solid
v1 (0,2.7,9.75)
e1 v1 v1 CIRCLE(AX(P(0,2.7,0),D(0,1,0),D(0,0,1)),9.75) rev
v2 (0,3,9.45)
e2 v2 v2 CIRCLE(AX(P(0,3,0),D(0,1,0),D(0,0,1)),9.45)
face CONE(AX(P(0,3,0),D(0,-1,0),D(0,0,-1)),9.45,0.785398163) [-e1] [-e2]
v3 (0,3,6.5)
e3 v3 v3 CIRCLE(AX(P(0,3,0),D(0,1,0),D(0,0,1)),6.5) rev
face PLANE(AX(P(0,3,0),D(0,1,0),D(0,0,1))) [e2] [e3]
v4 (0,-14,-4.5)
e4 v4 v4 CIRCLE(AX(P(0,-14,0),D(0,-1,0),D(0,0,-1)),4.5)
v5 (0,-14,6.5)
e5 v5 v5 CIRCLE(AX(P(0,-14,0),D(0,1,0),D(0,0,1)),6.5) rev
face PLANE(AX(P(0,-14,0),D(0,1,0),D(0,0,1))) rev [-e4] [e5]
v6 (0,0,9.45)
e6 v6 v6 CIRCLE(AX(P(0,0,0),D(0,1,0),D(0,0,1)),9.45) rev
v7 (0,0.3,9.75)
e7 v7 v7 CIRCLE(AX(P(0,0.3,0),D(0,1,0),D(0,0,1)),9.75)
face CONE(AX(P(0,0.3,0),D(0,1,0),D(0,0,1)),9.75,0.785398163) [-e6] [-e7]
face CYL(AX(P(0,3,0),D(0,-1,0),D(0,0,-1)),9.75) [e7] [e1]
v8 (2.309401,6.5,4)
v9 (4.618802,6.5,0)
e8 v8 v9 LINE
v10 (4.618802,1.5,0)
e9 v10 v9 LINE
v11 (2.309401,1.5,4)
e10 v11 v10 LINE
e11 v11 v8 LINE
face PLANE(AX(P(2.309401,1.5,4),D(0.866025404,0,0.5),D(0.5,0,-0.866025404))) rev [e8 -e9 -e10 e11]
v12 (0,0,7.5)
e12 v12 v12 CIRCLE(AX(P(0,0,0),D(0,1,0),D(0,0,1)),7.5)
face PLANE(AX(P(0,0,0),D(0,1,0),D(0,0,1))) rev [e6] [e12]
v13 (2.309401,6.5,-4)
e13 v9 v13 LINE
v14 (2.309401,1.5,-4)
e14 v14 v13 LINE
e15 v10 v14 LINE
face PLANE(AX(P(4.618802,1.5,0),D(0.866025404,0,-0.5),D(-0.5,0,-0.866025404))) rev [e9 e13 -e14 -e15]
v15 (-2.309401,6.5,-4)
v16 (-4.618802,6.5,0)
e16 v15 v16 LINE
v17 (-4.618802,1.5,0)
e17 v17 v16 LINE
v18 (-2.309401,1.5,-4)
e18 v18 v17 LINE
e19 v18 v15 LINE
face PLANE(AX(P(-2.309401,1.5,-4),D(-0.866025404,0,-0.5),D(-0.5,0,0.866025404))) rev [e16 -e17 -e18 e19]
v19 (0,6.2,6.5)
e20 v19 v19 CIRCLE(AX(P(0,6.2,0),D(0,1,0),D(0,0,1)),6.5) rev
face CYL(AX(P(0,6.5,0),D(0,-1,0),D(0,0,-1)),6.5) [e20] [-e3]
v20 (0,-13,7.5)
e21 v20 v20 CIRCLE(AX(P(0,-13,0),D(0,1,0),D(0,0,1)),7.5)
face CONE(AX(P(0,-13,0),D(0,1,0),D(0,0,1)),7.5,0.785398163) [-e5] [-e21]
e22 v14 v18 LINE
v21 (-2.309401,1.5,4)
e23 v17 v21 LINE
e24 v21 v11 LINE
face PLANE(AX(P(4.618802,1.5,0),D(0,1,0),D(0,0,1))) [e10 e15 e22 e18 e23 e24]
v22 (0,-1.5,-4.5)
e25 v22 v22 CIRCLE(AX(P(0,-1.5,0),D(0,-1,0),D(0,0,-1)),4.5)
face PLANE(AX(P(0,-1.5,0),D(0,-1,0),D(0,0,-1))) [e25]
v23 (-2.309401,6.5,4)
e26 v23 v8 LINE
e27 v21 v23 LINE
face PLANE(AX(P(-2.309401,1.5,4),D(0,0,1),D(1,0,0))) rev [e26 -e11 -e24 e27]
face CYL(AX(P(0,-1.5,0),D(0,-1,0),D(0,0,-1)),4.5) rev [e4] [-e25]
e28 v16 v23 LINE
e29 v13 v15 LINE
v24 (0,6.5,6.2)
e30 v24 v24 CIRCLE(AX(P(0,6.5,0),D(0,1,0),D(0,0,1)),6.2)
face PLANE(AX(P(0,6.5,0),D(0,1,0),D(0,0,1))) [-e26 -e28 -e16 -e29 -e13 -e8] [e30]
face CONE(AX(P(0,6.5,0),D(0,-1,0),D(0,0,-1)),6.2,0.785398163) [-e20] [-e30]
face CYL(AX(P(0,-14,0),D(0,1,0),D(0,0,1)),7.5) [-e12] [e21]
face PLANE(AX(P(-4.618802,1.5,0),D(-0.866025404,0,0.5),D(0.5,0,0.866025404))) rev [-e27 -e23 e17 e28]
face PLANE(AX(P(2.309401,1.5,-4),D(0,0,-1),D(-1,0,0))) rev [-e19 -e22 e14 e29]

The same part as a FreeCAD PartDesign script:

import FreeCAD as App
import Part
import Sketcher
Q = App.Units.Quantity


def edges_at(feature, points):
    """Names of the edges that pass closest to the given points."""
    edges = feature.Shape.Edges
    near = lambda p: min(range(len(edges)), key=lambda i: edges[i].distToShape(Part.Vertex(*p))[0])
    return sorted({f"Edge{near(p) + 1}" for p in points})

doc = App.newDocument("Part")
body = doc.addObject("PartDesign::Body", "Body")

sketch1 = body.newObject("Sketcher::SketchObject", "Sketch")
sketch1.AttachmentSupport = (doc.getObject("XZ_Plane"), [""])
sketch1.MapMode = "FlatFace"
sketch1.addGeometry(Part.Circle(App.Vector(0, 0, 0), App.Vector(0, 0, 1), 7.5), False)
sketch1.addConstraint(Sketcher.Constraint("Coincident", 0, 3, -1, 1))
sketch1.addConstraint(Sketcher.Constraint("Diameter", 0, 15.0))
pad1 = body.newObject("PartDesign::Pad", "Pad")
pad1.Profile = sketch1
pad1.Length = 14

sketch2 = body.newObject("Sketcher::SketchObject", "Sketch001")
sketch2.AttachmentSupport = (doc.getObject("XZ_Plane"), [""])
sketch2.MapMode = "FlatFace"
sketch2.addGeometry(Part.Circle(App.Vector(0, 0, 0), App.Vector(0, 0, 1), 9.75), False)
sketch2.addConstraint(Sketcher.Constraint("Coincident", 0, 3, -1, 1))
sketch2.addConstraint(Sketcher.Constraint("Diameter", 0, 19.5))
pad2 = body.newObject("PartDesign::Pad", "Pad001")
pad2.Profile = sketch2
pad2.Length = 3
pad2.Reversed = True

sketch3 = body.newObject("Sketcher::SketchObject", "Sketch002")
sketch3.AttachmentSupport = (doc.getObject("XZ_Plane"), [""])
sketch3.MapMode = "FlatFace"
sketch3.addGeometry(Part.Circle(App.Vector(0, 0, 0), App.Vector(0, 0, 1), 6.5), False)
sketch3.addConstraint(Sketcher.Constraint("Coincident", 0, 3, -1, 1))
sketch3.addConstraint(Sketcher.Constraint("Diameter", 0, 13.0))
pad3 = body.newObject("PartDesign::Pad", "Pad002")
pad3.Profile = sketch3
pad3.Length = 6.5
pad3.Reversed = True

sketch4 = body.newObject("Sketcher::SketchObject", "Sketch003")
sketch4.AttachmentSupport = (doc.getObject("XZ_Plane"), [""])
sketch4.MapMode = "FlatFace"
sketch4.AttachmentOffset = App.Placement(App.Vector(0, 0, 14), App.Rotation())
sketch4.addGeometry(Part.Circle(App.Vector(0, 0, 0), App.Vector(0, 0, 1), 4.5), False)
sketch4.addConstraint(Sketcher.Constraint("Coincident", 0, 3, -1, 1))
sketch4.addConstraint(Sketcher.Constraint("Diameter", 0, 9.0))
pocket1 = body.newObject("PartDesign::Pocket", "Pocket")
pocket1.Profile = sketch4
pocket1.Length = 12.5

sketch5 = body.newObject("Sketcher::SketchObject", "Sketch004")
sketch5.AttachmentSupport = (doc.getObject("XZ_Plane"), [""])
sketch5.MapMode = "FlatFace"
sketch5.AttachmentOffset = App.Placement(App.Vector(0, 0, -6.5), App.Rotation())
sketch5.addGeometry(Part.LineSegment(App.Vector(4.618802, 0, 0), App.Vector(2.309401, -4, 0)), False)
sketch5.addGeometry(Part.LineSegment(App.Vector(2.309401, -4, 0), App.Vector(-2.309401, -4, 0)), False)
sketch5.addGeometry(Part.LineSegment(App.Vector(-2.309401, -4, 0), App.Vector(-4.618802, 0, 0)), False)
sketch5.addGeometry(Part.LineSegment(App.Vector(-4.618802, 0, 0), App.Vector(-2.309401, 4, 0)), False)
sketch5.addGeometry(Part.LineSegment(App.Vector(-2.309401, 4, 0), App.Vector(2.309401, 4, 0)), False)
sketch5.addGeometry(Part.LineSegment(App.Vector(2.309401, 4, 0), App.Vector(4.618802, 0, 0)), False)
sketch5.addConstraint(Sketcher.Constraint("Coincident", 0, 2, 1, 1))
sketch5.addConstraint(Sketcher.Constraint("Coincident", 1, 2, 2, 1))
sketch5.addConstraint(Sketcher.Constraint("Coincident", 2, 2, 3, 1))
sketch5.addConstraint(Sketcher.Constraint("Coincident", 3, 2, 4, 1))
sketch5.addConstraint(Sketcher.Constraint("Coincident", 4, 2, 5, 1))
sketch5.addConstraint(Sketcher.Constraint("Coincident", 5, 2, 0, 1))
sketch5.addConstraint(Sketcher.Constraint("Horizontal", 1))
sketch5.addConstraint(Sketcher.Constraint("Horizontal", 4))
sketch5.addConstraint(Sketcher.Constraint("Symmetric", 0, 2, 3, 2, -1, 1))
sketch5.addConstraint(Sketcher.Constraint("Symmetric", 2, 2, 5, 2, -1, 1))
sketch5.addConstraint(Sketcher.Constraint("PointOnObject", 2, 2, -1))
sketch5.addConstraint(Sketcher.Constraint("Parallel", 2, 5))
sketch5.addConstraint(Sketcher.Constraint("Vertical", 1, 2, 3, 2))
sketch5.addConstraint(Sketcher.Constraint("Angle", 0, Q("-120 deg")))
sketch5.addConstraint(Sketcher.Constraint("DistanceY", 0, 2, -1, 1, 4.0))
sketch5.addConstraint(Sketcher.Constraint("DistanceX", -1, 1, 0, 2, 2.309401))
pocket2 = body.newObject("PartDesign::Pocket", "Pocket001")
pocket2.Profile = sketch5
pocket2.Length = 5
pocket2.Reversed = True
doc.recompute()

chamfer = body.newObject("PartDesign::Chamfer", "Chamfer")
chamfer.Base = (pocket2, edges_at(pocket2, [(0, -14, -7.5)]))
chamfer.Size = 1
doc.recompute()

chamfer2 = body.newObject("PartDesign::Chamfer", "Chamfer001")
chamfer2.Base = (chamfer, edges_at(chamfer, [(0, 6.5, -6.5), (0, 0, -9.75), (0, 3, -9.75)]))
chamfer2.Size = 0.3

doc.recompute()
